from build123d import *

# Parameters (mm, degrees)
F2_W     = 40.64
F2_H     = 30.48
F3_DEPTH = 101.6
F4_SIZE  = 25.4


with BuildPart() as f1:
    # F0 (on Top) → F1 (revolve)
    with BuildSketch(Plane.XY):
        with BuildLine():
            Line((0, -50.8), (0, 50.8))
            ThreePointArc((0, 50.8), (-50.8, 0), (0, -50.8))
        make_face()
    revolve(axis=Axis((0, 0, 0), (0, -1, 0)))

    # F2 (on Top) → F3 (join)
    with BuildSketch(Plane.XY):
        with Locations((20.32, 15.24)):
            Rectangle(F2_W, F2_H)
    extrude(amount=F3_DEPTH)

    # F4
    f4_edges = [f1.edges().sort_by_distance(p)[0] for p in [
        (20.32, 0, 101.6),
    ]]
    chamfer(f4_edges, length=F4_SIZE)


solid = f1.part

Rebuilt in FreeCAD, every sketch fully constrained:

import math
import FreeCAD as App
import Part
import Sketcher
from FreeCAD import Vector
Q = App.Units.Quantity


def edges_at(feature, points):
    """Names of the edges that pass closest to the given points."""
    edges = feature.Shape.Edges
    near = lambda p: min(range(len(edges)), key=lambda i: edges[i].distToShape(Part.Vertex(*p))[0])
    return sorted({f"Edge{near(p) + 1}" for p in points})


def add_polygon(sketch, points):
    """Adds a closed chain of lines whose ends are joined by coincident constraints."""
    first, n = sketch.GeometryCount, len(points)
    for a, b in zip(points, points[1:] + points[:1]):
        sketch.addGeometry(Part.LineSegment(App.Vector(*a, 0), App.Vector(*b, 0)), False)
    for i in range(n):
        sketch.addConstraint(Sketcher.Constraint("Coincident", first + i, 2, first + (i + 1) % n, 1))

doc = App.newDocument("Part")
body = doc.addObject("PartDesign::Body", "Body")

# Sketch on XY plane
sketch1 = doc.addObject("Sketcher::SketchObject", "Sketch")
body.addObject(sketch1)
sketch1.AttachmentSupport = (doc.XY_Plane, [""])
sketch1.MapMode = "FlatFace"
sketch1.addGeometry([
    Part.LineSegment(Vector(0, -51, 0), Vector(0, 51, 0)),
    Part.ArcOfCircle(Part.Circle(Vector(0, 0, 0), Vector(0, 0, 1), 51), math.radians(90), math.radians(270)),
], False)
sketch1.addConstraint([
    Sketcher.Constraint("Coincident", 0, 1, 1, 2),
    Sketcher.Constraint("Coincident", 1, 1, 0, 2),
    Sketcher.Constraint("Vertical", 0),
    Sketcher.Constraint("Coincident", 1, 3, -1, 1),
    Sketcher.Constraint("PointOnObject", 0, 1, -2),
    Sketcher.Constraint("Radius", 1, Q("2 in")),
])
revolution = doc.addObject("PartDesign::Revolution", "Revolution")
body.addObject(revolution)
revolution.Profile = sketch1
revolution.ReferenceAxis = (sketch1, ["V_Axis"])
revolution.Angle = 360

# Sketch on XY plane
sketch2 = doc.addObject("Sketcher::SketchObject", "Sketch001")
body.addObject(sketch2)
sketch2.AttachmentSupport = (doc.XY_Plane, [""])
sketch2.MapMode = "FlatFace"
add_polygon(sketch2, [(0, 30), (0, 0), (41, 0), (41, 30)])  # lines 0-3
sketch2.addConstraint([
    Sketcher.Constraint("Vertical", 0),
    Sketcher.Constraint("Horizontal", 1),
    Sketcher.Constraint("Vertical", 2),
    Sketcher.Constraint("Horizontal", 3),
    Sketcher.Constraint("Coincident", 0, 2, -1, 1),
    Sketcher.Constraint("DistanceX", 1, 1, 1, 2, Q("1.6 in")),
    Sketcher.Constraint("DistanceY", 0, 2, 0, 1, Q("1.2 in")),
])
pad1 = doc.addObject("PartDesign::Pad", "Pad")
body.addObject(pad1)
pad1.Profile = sketch2
pad1.Length = Q("4 in")
doc.recompute()

chamfer = doc.addObject("PartDesign::Chamfer", "Chamfer")
body.addObject(chamfer)
chamfer.Base = (pad1, edges_at(pad1, [(20.32, 0, 101.6)]))
chamfer.Size = Q("1 in")

doc.recompute()
